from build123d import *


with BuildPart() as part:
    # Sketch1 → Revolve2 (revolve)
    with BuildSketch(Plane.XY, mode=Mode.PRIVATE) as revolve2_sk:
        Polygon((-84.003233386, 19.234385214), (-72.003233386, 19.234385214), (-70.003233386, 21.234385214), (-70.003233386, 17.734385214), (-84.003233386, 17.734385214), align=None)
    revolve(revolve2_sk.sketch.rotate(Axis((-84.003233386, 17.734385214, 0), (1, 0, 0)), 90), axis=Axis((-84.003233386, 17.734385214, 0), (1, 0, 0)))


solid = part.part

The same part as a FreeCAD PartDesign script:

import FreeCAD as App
import Part
import Sketcher

V = App.Vector
Q = App.Units.Quantity


def add_polygon(sketch, points):
    """Adds a closed chain of lines whose ends are joined by coincident constraints."""
    first, n = sketch.GeometryCount, len(points)
    for a, b in zip(points, points[1:] + points[:1]):
        sketch.addGeometry(Part.LineSegment(App.Vector(*a, 0), App.Vector(*b, 0)), False)
    for i in range(n):
        sketch.addConstraint(Sketcher.Constraint("Coincident", first + i, 2, first + (i + 1) % n, 1))

doc = App.newDocument("Part")
body = doc.addObject("PartDesign::Body", "Body")

# Sketch on XY plane
sketch1 = doc.addObject("Sketcher::SketchObject", "Sketch")
body.addObject(sketch1)
sketch1.AttachmentSupport = (doc.XY_Plane, [""])
sketch1.MapMode = "FlatFace"
add_polygon(sketch1, [(-72, 19.2), (-84, 19.2), (-84, 17.7), (-70, 17.7), (-70, 21.2)])  # lines 0-4
sketch1.addGeometry(Part.LineSegment(V(-84, 17.7, 0), V(-70, 17.7, 0)), True)  # axis
sketch1.addConstraint([
    Sketcher.Constraint("Horizontal", 0),
    Sketcher.Constraint("Vertical", 1),
    Sketcher.Constraint("Horizontal", 2),
    Sketcher.Constraint("Vertical", 3),
    Sketcher.Constraint("Horizontal", 5),
    Sketcher.Constraint("Coincident", 5, 1, 1, 2),
    Sketcher.Constraint("Vertical", 3, 2, 5, 2),
    Sketcher.Constraint("DistanceX", 0, 2, 0, 1, Q("12 mm")),
    Sketcher.Constraint("DistanceX", 2, 1, 2, 2, Q("14 mm")),
    Sketcher.Constraint("Angle", 4, Q("-135 deg")),
    Sketcher.Constraint("DistanceY", 1, 2, 1, 1, Q("1.5 mm")),
    Sketcher.Constraint("DistanceX", 0, 2, -1, 1, Q("84.003233 mm")),
    Sketcher.Constraint("DistanceY", -1, 1, 0, 2, Q("19.234385 mm")),
])
revolution = doc.addObject("PartDesign::Revolution", "Revolution")
body.addObject(revolution)
revolution.Profile = sketch1
revolution.ReferenceAxis = (sketch1, ["Axis0"])
revolution.Angle = 360

doc.recompute()
